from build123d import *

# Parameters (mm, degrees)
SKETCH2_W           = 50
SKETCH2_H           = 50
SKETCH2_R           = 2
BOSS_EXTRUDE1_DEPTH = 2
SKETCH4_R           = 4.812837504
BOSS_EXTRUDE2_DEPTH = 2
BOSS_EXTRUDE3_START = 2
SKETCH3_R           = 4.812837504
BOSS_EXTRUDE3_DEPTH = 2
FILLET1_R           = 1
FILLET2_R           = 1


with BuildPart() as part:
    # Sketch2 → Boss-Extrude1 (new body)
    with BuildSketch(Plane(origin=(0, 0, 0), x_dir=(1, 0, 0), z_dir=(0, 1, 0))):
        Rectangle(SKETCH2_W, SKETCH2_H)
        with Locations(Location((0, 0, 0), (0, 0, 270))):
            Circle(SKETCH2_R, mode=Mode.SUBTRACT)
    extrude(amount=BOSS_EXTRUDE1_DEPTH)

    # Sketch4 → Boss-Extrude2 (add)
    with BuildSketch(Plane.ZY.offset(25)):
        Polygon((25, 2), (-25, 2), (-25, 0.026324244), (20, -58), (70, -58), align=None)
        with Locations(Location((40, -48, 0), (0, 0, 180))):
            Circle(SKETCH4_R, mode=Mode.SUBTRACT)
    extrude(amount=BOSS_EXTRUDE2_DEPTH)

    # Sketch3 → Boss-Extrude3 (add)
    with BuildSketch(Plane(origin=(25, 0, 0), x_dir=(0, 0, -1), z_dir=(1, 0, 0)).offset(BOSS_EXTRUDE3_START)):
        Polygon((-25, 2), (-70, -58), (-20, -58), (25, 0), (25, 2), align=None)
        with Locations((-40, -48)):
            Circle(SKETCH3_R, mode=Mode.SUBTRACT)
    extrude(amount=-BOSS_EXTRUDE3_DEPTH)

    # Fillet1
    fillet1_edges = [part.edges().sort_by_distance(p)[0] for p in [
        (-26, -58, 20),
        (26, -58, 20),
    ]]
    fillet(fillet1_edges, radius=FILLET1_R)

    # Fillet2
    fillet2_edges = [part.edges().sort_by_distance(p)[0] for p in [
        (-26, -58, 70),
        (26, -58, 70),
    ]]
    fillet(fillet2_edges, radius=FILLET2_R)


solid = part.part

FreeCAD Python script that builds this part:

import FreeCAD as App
import Part
import Sketcher
Q = App.Units.Quantity


def edges_at(feature, points):
    """Names of the edges that pass closest to the given points."""
    edges = feature.Shape.Edges
    near = lambda p: min(range(len(edges)), key=lambda i: edges[i].distToShape(Part.Vertex(*p))[0])
    return sorted({f"Edge{near(p) + 1}" for p in points})

doc = App.newDocument("Part")
body = doc.addObject("PartDesign::Body", "Body")

# Sketch on XZ plane
sketch1 = body.newObject("Sketcher::SketchObject", "Sketch")
sketch1.AttachmentSupport = (doc.getObject("XZ_Plane"), [""])
sketch1.MapMode = "FlatFace"
sketch1.addGeometry([
    Part.LineSegment(App.Vector(-25, -25, 0), App.Vector(-25, 25, 0)),  # 0
    Part.LineSegment(App.Vector(-25, 25, 0), App.Vector(25, 25, 0)),  # 1
    Part.LineSegment(App.Vector(25, 25, 0), App.Vector(25, -25, 0)),  # 2
    Part.LineSegment(App.Vector(25, -25, 0), App.Vector(-25, -25, 0)),  # 3
    Part.Circle(App.Vector(0, 0, 0), App.Vector(0, 0, 1), 2),  # 4
], False)
sketch1.addConstraint([
    Sketcher.Constraint("Coincident", 0, 2, 1, 1),
    Sketcher.Constraint("Coincident", 1, 2, 2, 1),
    Sketcher.Constraint("Coincident", 2, 2, 3, 1),
    Sketcher.Constraint("Coincident", 3, 2, 0, 1),
    Sketcher.Constraint("Vertical", 0),
    Sketcher.Constraint("Horizontal", 1),
    Sketcher.Constraint("Vertical", 2),
    Sketcher.Constraint("Horizontal", 3),
    Sketcher.Constraint("Coincident", 4, 3, -1, 1),
    Sketcher.Constraint("Symmetric", 0, 2, 2, 2, -1, 1),
    Sketcher.Constraint("Equal", 3, 0),
    Sketcher.Constraint("Diameter", 4, Q("4 mm")),
    Sketcher.Constraint("DistanceX", 1, 1, 1, 2, Q("50 mm")),
])
pad1 = body.newObject("PartDesign::Pad", "Pad")
pad1.Profile = sketch1
pad1.Length = 2
pad1.Reversed = True

# Sketch on YZ plane
sketch2 = body.newObject("Sketcher::SketchObject", "Sketch001")
sketch2.AttachmentSupport = (doc.getObject("YZ_Plane"), [""])
sketch2.MapMode = "FlatFace"
sketch2.AttachmentOffset = App.Placement(App.Vector(0, 0, -25), App.Rotation())
sketch2.addGeometry([
    Part.LineSegment(App.Vector(2, 25, 0), App.Vector(2, -25, 0)),  # 0
    Part.LineSegment(App.Vector(2, -25, 0), App.Vector(0, -25, 0)),  # 1
    Part.LineSegment(App.Vector(0, -25, 0), App.Vector(-58, 20, 0)),  # 2
    Part.LineSegment(App.Vector(-58, 20, 0), App.Vector(-58, 70, 0)),  # 3
    Part.LineSegment(App.Vector(-58, 70, 0), App.Vector(2, 25, 0)),  # 4
    Part.Circle(App.Vector(-48, 40, 0), App.Vector(0, 0, 1), 4.8),  # 5
], False)
sketch2.addConstraint([
    Sketcher.Constraint("Coincident", 0, 2, 1, 1),
    Sketcher.Constraint("Coincident", 1, 2, 2, 1),
    Sketcher.Constraint("Coincident", 2, 2, 3, 1),
    Sketcher.Constraint("Coincident", 3, 2, 4, 1),
    Sketcher.Constraint("Coincident", 4, 2, 0, 1),
    Sketcher.Constraint("Vertical", 0),
    Sketcher.Constraint("Horizontal", 1),
    Sketcher.Constraint("Vertical", 3),
    Sketcher.Constraint("Equal", 0, 3),
    Sketcher.Constraint("DistanceY", 0, 2, 0, 1, Q("50 mm")),
    Sketcher.Constraint("Distance", 4, Q("75 mm")),
    Sketcher.Constraint("DistanceX", 5, 3, -1, 1, Q("48 mm")),
    Sketcher.Constraint("DistanceY", -1, 1, 5, 3, Q("40 mm")),
    Sketcher.Constraint("DistanceX", -1, 1, 0, 2, Q("2 mm")),
    Sketcher.Constraint("DistanceY", 0, 2, -1, 1, Q("25 mm")),
    Sketcher.Constraint("DistanceX", 2, 2, -1, 1, Q("58 mm")),
    Sketcher.Constraint("Diameter", 5, Q("9.625675 mm")),
    Sketcher.Constraint("Distance", 2, Q("73.430609 mm")),
])
pad2 = body.newObject("PartDesign::Pad", "Pad001")
pad2.Profile = sketch2
pad2.Length = 2
pad2.Reversed = True

# Sketch on YZ plane
sketch3 = body.newObject("Sketcher::SketchObject", "Sketch002")
sketch3.AttachmentSupport = (doc.getObject("YZ_Plane"), [""])
sketch3.MapMode = "FlatFace"
sketch3.AttachmentOffset = App.Placement(App.Vector(0, 0, 27), App.Rotation())
sketch3.addGeometry([
    Part.LineSegment(App.Vector(2, 25, 0), App.Vector(-58, 70, 0)),  # 0
    Part.LineSegment(App.Vector(-58, 70, 0), App.Vector(-58, 20, 0)),  # 1
    Part.LineSegment(App.Vector(-58, 20, 0), App.Vector(0, -25, 0)),  # 2
    Part.LineSegment(App.Vector(0, -25, 0), App.Vector(2, -25, 0)),  # 3
    Part.LineSegment(App.Vector(2, -25, 0), App.Vector(2, 25, 0)),  # 4
    Part.Circle(App.Vector(-48, 40, 0), App.Vector(0, 0, 1), 4.8),  # 5
], False)
sketch3.addConstraint([
    Sketcher.Constraint("Coincident", 0, 2, 1, 1),
    Sketcher.Constraint("Coincident", 1, 2, 2, 1),
    Sketcher.Constraint("Coincident", 2, 2, 3, 1),
    Sketcher.Constraint("Coincident", 3, 2, 4, 1),
    Sketcher.Constraint("Coincident", 4, 2, 0, 1),
    Sketcher.Constraint("Vertical", 1),
    Sketcher.Constraint("Horizontal", 3),
    Sketcher.Constraint("Vertical", 4),
    Sketcher.Constraint("PointOnObject", 2, 2, -2),
    Sketcher.Constraint("Equal", 1, 4),
    Sketcher.Constraint("DistanceX", 3, 1, 3, 2, Q("2 mm")),
    Sketcher.Constraint("DistanceY", 1, 2, 1, 1, Q("50 mm")),
    Sketcher.Constraint("Distance", 0, Q("75 mm")),
    Sketcher.Constraint("DistanceX", 5, 3, -1, 1, Q("48 mm")),
    Sketcher.Constraint("DistanceY", -1, 1, 5, 3, Q("40 mm")),
    Sketcher.Constraint("DistanceX", 0, 2, -1, 1, Q("58 mm")),
    Sketcher.Constraint("DistanceY", -1, 1, 0, 2, Q("70 mm")),
    Sketcher.Constraint("Diameter", 5, Q("9.625675 mm")),
])
pad3 = body.newObject("PartDesign::Pad", "Pad002")
pad3.Profile = sketch3
pad3.Length = 2
pad3.Reversed = True
doc.recompute()

fillet = body.newObject("PartDesign::Fillet", "Fillet")
fillet.Base = (pad3, edges_at(pad3, [(-26, -58, 20), (26, -58, 20)]))
fillet.Radius = 1
doc.recompute()

fillet2 = body.newObject("PartDesign::Fillet", "Fillet001")
fillet2.Base = (fillet, edges_at(fillet, [(-26, -58, 70), (26, -58, 70)]))
fillet2.Radius = 1

doc.recompute()
